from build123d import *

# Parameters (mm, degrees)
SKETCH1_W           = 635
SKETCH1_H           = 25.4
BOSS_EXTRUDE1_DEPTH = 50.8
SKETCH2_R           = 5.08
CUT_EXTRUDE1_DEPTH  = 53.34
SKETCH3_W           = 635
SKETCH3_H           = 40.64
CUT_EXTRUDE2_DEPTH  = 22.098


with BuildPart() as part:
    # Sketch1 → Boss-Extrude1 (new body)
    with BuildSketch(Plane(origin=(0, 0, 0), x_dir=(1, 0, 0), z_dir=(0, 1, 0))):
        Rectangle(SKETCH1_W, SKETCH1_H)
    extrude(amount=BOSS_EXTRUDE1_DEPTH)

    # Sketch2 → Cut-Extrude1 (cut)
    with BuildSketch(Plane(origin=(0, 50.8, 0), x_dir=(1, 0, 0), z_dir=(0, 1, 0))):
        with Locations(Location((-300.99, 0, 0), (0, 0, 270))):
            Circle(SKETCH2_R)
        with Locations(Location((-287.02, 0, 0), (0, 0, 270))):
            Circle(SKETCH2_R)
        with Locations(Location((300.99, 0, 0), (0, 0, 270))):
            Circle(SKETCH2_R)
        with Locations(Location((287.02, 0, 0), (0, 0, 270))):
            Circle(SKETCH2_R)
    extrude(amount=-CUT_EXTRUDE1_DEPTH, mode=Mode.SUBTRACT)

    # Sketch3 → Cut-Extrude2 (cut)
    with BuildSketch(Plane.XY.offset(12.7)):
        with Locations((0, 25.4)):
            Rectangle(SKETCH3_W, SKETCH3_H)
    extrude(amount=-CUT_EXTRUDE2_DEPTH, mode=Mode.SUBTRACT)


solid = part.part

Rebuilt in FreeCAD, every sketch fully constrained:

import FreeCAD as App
import Part
import Sketcher
Q = App.Units.Quantity

doc = App.newDocument("Part")
params = doc.addObject("Spreadsheet::Sheet", "Params")
for row, (alias, value) in enumerate([
    ("sketch1_width", "25 in"),
    ("sketch1_height", "1 in"),
    ("pad1_length", "2 in"),
    ("sketch2_diameter", "0.4 in"),
    ("pocket1_length", "2.1 in"),
    ("sketch3_width", "25 in"),
    ("sketch3_height", "1.6 in"),
    ("pocket2_length", "0.87 in"),
], start=1):
    params.set(f"A{row}", alias)
    params.set(f"B{row}", "=" + value)
    params.setAlias(f"B{row}", alias)

body = doc.addObject("PartDesign::Body", "Body")

sketch1 = body.newObject("Sketcher::SketchObject", "Sketch")
sketch1.AttachmentSupport = (doc.getObject("XZ_Plane"), [""])
sketch1.MapMode = "FlatFace"
sketch1.addGeometry([
    Part.LineSegment(App.Vector(-318, -13, 0), App.Vector(-318, 13, 0)),
    Part.LineSegment(App.Vector(-318, 13, 0), App.Vector(318, 13, 0)),
    Part.LineSegment(App.Vector(318, 13, 0), App.Vector(318, -13, 0)),
    Part.LineSegment(App.Vector(318, -13, 0), App.Vector(-318, -13, 0)),
], False)
sketch1.addConstraint([
    Sketcher.Constraint("Coincident", 0, 2, 1, 1),
    Sketcher.Constraint("Coincident", 1, 2, 2, 1),
    Sketcher.Constraint("Coincident", 2, 2, 3, 1),
    Sketcher.Constraint("Coincident", 3, 2, 0, 1),
    Sketcher.Constraint("Vertical", 0),
    Sketcher.Constraint("Horizontal", 1),
    Sketcher.Constraint("Vertical", 2),
    Sketcher.Constraint("Horizontal", 3),
    Sketcher.Constraint("Symmetric", 0, 2, 2, 2, -1, 1),
    Sketcher.Constraint("DistanceX", 1, 1, 1, 2, Q("25 in")),
    Sketcher.Constraint("DistanceY", 0, 1, 0, 2, Q("1 in")),
])
sketch1.setExpression("Constraints[9]", "Params.sketch1_width")
sketch1.setExpression("Constraints[10]", "Params.sketch1_height")
pad1 = body.newObject("PartDesign::Pad", "Pad")
pad1.Profile = sketch1
pad1.setExpression("Length", "Params.pad1_length")
pad1.Reversed = True

sketch2 = body.newObject("Sketcher::SketchObject", "Sketch001")
sketch2.AttachmentSupport = (doc.getObject("XZ_Plane"), [""])
sketch2.MapMode = "FlatFace"
sketch2.AttachmentOffset = App.Placement(App.Vector(0, 0, -2 * 25.4), App.Rotation())
sketch2.addGeometry([
    Part.Circle(App.Vector(-301, 0, 0), App.Vector(0, 0, 1), 5),
    Part.Circle(App.Vector(-287, 0, 0), App.Vector(0, 0, 1), 5),
    Part.Circle(App.Vector(301, 0, 0), App.Vector(0, 0, 1), 5),
    Part.Circle(App.Vector(287, 0, 0), App.Vector(0, 0, 1), 5),
], False)
sketch2.addConstraint([
    Sketcher.Constraint("Equal", 0, 1),
    Sketcher.Constraint("Equal", 1, 2),
    Sketcher.Constraint("Equal", 2, 3),
    Sketcher.Constraint("Symmetric", 0, 3, 2, 3, -1, 1),
    Sketcher.Constraint("Symmetric", 1, 3, 3, 3, -1, 1),
    Sketcher.Constraint("PointOnObject", 0, 3, -1),
    Sketcher.Constraint("PointOnObject", 1, 3, -1),
    Sketcher.Constraint("Diameter", 0, Q("0.4 in")),
    Sketcher.Constraint("DistanceX", 1, 3, -1, 1, Q("11.3 in")),
    Sketcher.Constraint("DistanceX", 0, 3, 2, 3, Q("23.7 in")),
])
sketch2.setExpression("Constraints[7]", "Params.sketch2_diameter")
pocket1 = body.newObject("PartDesign::Pocket", "Pocket")
pocket1.Profile = sketch2
pocket1.setExpression("Length", "Params.pocket1_length")
pocket1.Reversed = True

sketch3 = body.newObject("Sketcher::SketchObject", "Sketch002")
sketch3.AttachmentSupport = (doc.getObject("XY_Plane"), [""])
sketch3.MapMode = "FlatFace"
sketch3.AttachmentOffset = App.Placement(App.Vector(0, 0, 0.5 * 25.4), App.Rotation())
sketch3.addGeometry([
    Part.LineSegment(App.Vector(-318, 46, 0), App.Vector(-318, 5, 0)),
    Part.LineSegment(App.Vector(-318, 5, 0), App.Vector(318, 5, 0)),
    Part.LineSegment(App.Vector(318, 5, 0), App.Vector(318, 46, 0)),
    Part.LineSegment(App.Vector(318, 46, 0), App.Vector(-318, 46, 0)),
], False)
sketch3.addConstraint([
    Sketcher.Constraint("Coincident", 0, 2, 1, 1),
    Sketcher.Constraint("Coincident", 1, 2, 2, 1),
    Sketcher.Constraint("Coincident", 2, 2, 3, 1),
    Sketcher.Constraint("Coincident", 3, 2, 0, 1),
    Sketcher.Constraint("Vertical", 0),
    Sketcher.Constraint("Horizontal", 1),
    Sketcher.Constraint("Vertical", 2),
    Sketcher.Constraint("Horizontal", 3),
    Sketcher.Constraint("DistanceX", 1, 1, 1, 2, Q("25 in")),
    Sketcher.Constraint("DistanceY", 0, 2, 0, 1, Q("1.6 in")),
    Sketcher.Constraint("DistanceX", 0, 2, -1, 1, Q("12.5 in")),
    Sketcher.Constraint("DistanceY", -1, 1, 0, 2, Q("0.2 in")),
])
sketch3.setExpression("Constraints[8]", "Params.sketch3_width")
sketch3.setExpression("Constraints[9]", "Params.sketch3_height")
pocket2 = body.newObject("PartDesign::Pocket", "Pocket001")
pocket2.Profile = sketch3
pocket2.setExpression("Length", "Params.pocket2_length")

doc.recompute()
